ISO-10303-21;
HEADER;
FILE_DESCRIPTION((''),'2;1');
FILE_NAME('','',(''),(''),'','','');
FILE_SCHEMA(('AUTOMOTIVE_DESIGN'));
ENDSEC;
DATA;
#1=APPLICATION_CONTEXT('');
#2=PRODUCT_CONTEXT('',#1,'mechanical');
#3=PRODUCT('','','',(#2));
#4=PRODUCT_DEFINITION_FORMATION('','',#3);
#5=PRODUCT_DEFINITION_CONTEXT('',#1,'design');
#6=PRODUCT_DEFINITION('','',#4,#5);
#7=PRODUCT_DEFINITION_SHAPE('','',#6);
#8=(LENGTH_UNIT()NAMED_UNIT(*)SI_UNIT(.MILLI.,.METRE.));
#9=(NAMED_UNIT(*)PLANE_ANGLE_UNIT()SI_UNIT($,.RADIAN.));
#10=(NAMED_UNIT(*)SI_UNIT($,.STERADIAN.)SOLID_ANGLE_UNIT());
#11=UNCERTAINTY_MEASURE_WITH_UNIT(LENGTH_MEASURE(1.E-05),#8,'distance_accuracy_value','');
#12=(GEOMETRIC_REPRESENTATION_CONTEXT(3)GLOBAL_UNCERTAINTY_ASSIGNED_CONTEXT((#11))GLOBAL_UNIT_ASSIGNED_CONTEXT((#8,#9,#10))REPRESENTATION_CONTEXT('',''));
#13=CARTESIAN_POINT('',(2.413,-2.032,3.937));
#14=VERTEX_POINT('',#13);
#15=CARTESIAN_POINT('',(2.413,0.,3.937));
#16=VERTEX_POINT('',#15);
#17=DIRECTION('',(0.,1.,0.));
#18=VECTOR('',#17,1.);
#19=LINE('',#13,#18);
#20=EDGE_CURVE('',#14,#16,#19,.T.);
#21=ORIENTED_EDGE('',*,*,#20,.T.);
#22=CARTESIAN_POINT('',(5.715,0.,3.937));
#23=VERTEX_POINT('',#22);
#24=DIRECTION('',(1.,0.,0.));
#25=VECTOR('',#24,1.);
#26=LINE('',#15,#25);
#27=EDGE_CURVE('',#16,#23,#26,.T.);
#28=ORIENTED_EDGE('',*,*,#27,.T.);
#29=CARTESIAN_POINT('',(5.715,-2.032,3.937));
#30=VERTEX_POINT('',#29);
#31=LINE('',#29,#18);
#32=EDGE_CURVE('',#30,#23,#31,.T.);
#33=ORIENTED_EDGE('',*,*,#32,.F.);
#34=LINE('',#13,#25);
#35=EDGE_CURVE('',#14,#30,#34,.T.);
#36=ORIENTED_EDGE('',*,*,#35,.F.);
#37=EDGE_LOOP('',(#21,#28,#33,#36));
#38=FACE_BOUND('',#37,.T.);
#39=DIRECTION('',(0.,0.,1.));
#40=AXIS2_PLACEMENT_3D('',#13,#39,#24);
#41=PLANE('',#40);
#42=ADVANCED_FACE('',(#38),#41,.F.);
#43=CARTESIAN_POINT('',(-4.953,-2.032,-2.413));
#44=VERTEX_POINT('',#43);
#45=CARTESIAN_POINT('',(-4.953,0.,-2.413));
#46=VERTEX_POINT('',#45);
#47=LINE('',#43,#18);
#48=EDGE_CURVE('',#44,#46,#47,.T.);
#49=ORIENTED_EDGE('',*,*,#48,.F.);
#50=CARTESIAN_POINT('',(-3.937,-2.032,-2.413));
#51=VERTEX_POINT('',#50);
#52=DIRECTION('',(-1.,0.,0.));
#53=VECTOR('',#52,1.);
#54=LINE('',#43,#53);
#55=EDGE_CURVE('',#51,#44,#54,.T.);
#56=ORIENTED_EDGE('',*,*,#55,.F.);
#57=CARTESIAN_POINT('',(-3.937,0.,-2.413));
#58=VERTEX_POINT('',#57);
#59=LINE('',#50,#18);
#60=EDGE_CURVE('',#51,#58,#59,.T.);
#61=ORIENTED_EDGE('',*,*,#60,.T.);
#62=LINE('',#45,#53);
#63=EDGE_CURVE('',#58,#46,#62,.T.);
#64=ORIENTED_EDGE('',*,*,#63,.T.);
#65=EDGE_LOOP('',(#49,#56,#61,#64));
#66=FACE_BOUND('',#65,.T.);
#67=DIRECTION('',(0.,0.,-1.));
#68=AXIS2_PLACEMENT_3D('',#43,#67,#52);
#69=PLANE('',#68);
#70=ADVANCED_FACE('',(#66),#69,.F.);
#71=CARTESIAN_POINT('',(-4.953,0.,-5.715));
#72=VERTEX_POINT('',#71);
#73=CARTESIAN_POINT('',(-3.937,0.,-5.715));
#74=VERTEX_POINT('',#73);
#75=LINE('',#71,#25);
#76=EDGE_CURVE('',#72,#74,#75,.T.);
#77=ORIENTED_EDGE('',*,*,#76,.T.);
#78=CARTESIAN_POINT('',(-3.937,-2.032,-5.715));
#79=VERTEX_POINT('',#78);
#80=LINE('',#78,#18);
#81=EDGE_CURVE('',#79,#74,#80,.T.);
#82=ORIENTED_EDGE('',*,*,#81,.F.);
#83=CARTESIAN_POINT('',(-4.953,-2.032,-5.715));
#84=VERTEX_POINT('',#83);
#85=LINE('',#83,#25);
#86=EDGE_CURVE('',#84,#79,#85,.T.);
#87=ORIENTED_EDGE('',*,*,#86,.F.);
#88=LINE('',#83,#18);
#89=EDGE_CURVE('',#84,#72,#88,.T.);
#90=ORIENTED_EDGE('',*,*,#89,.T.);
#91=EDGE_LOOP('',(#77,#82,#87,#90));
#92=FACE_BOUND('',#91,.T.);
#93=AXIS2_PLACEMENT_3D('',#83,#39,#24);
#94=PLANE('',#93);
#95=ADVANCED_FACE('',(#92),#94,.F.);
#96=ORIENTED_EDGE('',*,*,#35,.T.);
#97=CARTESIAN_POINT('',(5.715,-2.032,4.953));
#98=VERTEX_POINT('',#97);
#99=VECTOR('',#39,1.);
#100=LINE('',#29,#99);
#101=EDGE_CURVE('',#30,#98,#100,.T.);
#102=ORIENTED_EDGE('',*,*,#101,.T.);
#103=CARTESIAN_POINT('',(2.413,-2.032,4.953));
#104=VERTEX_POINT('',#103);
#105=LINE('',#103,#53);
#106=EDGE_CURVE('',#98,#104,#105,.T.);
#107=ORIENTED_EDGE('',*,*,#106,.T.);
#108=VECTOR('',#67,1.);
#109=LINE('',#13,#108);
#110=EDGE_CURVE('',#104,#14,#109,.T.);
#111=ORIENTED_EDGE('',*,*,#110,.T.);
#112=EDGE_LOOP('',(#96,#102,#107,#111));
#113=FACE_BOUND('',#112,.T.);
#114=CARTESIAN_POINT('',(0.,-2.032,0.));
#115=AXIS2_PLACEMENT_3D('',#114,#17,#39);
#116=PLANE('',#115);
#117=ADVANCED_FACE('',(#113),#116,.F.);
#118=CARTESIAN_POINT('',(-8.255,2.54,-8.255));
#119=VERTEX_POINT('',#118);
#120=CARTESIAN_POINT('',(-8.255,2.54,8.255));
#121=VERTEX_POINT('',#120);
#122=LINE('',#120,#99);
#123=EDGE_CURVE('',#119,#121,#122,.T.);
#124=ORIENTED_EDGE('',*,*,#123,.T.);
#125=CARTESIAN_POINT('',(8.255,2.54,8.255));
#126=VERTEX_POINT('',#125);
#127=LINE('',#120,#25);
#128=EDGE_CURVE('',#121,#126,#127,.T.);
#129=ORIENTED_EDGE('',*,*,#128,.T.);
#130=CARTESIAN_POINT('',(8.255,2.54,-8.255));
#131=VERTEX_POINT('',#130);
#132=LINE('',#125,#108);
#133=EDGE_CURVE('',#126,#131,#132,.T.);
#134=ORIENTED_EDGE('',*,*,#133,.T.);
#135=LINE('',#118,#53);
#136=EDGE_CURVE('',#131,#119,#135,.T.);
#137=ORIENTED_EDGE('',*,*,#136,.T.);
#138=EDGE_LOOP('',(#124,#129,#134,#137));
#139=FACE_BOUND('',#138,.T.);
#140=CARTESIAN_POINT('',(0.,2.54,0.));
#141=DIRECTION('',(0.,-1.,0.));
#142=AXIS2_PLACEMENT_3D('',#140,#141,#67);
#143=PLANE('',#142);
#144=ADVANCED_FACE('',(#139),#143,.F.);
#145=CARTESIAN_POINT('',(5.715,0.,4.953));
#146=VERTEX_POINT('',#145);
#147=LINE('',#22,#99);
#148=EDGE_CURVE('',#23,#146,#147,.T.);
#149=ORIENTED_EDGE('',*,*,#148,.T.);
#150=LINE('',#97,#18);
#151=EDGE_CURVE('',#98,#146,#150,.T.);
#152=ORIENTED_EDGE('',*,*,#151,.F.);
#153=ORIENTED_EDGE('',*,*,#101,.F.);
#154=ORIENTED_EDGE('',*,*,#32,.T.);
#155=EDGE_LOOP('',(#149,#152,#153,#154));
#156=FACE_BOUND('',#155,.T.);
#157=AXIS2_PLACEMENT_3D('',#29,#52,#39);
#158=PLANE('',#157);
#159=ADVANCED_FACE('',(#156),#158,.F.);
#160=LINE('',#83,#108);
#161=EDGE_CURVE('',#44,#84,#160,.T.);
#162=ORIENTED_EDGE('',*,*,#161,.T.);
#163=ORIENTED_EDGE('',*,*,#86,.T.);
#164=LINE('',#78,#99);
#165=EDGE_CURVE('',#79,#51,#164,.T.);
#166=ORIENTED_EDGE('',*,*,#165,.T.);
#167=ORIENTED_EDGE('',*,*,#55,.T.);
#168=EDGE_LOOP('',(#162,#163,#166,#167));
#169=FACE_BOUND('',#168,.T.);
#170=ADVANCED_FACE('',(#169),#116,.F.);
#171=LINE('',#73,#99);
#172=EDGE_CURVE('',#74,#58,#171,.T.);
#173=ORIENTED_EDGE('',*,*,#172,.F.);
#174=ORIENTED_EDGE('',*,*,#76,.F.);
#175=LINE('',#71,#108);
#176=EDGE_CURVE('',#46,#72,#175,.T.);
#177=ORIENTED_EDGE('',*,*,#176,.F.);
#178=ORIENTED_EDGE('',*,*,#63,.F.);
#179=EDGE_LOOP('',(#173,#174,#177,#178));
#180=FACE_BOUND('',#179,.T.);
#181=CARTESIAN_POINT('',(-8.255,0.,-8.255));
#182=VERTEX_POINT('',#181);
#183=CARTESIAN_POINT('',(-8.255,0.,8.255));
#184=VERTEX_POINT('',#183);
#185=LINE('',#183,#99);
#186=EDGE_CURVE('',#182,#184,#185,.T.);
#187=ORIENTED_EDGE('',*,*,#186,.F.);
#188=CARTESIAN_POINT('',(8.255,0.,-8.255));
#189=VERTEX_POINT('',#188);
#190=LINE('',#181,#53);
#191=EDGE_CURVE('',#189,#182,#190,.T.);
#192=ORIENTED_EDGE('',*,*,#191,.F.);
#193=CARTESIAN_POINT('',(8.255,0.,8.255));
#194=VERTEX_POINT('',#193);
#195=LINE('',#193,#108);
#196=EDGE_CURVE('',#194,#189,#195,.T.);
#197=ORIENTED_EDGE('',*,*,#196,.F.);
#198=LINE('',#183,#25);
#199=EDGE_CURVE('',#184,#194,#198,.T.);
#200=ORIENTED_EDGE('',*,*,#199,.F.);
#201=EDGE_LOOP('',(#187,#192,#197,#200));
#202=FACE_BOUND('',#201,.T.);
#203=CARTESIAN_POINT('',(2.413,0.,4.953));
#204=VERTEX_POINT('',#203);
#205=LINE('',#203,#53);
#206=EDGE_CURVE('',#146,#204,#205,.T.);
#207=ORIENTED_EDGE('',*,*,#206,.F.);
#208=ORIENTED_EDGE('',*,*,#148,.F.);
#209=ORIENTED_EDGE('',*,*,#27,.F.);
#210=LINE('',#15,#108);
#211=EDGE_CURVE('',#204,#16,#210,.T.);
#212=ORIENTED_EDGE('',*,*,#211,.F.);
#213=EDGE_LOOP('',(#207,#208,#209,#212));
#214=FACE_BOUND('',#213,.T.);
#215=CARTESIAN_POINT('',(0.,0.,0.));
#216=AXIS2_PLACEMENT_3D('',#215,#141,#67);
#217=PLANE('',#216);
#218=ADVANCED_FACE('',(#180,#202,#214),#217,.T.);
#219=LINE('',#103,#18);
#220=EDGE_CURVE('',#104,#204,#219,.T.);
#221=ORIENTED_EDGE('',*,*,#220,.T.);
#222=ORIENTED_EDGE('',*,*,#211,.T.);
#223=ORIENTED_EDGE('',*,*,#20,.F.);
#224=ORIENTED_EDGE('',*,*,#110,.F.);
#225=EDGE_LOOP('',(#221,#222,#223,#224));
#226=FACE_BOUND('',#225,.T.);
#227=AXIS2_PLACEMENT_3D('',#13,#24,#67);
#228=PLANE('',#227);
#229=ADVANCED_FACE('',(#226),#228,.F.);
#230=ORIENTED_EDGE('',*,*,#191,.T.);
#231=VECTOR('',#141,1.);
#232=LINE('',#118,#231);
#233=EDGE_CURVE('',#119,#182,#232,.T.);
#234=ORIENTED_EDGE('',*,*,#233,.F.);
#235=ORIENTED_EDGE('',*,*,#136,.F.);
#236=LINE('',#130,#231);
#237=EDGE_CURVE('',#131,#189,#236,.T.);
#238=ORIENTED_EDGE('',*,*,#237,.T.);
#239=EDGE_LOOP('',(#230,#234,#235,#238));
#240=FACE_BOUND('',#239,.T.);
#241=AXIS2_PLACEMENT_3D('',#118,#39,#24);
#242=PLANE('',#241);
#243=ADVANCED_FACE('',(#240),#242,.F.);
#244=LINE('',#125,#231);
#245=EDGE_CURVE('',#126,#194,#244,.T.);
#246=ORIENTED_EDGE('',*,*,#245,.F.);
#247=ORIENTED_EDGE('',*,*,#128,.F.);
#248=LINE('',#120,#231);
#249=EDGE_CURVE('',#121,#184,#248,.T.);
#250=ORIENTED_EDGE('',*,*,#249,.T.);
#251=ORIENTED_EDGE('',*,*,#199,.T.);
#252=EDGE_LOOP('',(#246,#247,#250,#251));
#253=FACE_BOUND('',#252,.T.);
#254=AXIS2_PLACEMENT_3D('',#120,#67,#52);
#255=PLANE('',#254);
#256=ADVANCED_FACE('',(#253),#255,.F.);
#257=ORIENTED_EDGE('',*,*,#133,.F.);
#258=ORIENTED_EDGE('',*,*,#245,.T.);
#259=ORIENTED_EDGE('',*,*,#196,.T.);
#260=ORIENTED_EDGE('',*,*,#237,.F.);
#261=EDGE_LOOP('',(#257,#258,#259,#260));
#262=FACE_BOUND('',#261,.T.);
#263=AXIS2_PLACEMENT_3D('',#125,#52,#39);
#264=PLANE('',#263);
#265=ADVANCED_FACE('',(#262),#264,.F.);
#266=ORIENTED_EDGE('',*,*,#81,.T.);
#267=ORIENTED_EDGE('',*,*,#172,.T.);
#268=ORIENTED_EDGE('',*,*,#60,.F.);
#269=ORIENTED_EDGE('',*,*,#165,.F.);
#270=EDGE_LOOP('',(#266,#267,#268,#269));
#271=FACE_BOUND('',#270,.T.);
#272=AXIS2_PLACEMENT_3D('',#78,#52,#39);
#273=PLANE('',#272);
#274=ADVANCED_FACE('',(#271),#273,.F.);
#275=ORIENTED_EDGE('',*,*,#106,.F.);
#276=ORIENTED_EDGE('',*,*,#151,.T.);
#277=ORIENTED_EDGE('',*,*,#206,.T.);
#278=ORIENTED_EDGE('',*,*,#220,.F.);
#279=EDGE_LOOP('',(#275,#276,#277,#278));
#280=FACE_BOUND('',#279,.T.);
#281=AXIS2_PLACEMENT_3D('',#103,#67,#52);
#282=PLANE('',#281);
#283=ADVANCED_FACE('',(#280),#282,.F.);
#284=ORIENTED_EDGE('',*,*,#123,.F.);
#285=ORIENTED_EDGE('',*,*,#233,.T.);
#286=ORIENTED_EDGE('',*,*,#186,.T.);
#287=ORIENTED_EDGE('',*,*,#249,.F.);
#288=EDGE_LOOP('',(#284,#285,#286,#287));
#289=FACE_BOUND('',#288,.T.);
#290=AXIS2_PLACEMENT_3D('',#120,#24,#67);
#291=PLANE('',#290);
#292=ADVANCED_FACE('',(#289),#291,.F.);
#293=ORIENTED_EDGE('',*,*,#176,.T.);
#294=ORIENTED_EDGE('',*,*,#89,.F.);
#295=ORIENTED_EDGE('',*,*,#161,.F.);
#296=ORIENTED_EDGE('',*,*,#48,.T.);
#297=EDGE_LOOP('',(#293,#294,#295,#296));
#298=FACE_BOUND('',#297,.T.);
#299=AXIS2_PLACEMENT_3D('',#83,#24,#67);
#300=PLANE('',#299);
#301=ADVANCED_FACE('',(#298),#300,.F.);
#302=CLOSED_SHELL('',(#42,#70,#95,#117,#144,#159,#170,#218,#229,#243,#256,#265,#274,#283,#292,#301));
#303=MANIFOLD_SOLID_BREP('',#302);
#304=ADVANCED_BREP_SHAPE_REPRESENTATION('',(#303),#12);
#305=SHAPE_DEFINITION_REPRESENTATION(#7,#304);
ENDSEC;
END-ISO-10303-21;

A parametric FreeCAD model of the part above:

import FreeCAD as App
import Part
import Sketcher
from FreeCAD import Vector
Q = App.Units.Quantity


def add_polygon(sketch, points):
    """Adds a closed chain of lines whose ends are joined by coincident constraints."""
    first, n = sketch.GeometryCount, len(points)
    for a, b in zip(points, points[1:] + points[:1]):
        sketch.addGeometry(Part.LineSegment(App.Vector(*a, 0), App.Vector(*b, 0)), False)
    for i in range(n):
        sketch.addConstraint(Sketcher.Constraint("Coincident", first + i, 2, first + (i + 1) % n, 1))

doc = App.newDocument("Part")
body = doc.addObject("PartDesign::Body", "Body")

sketch1 = doc.addObject("Sketcher::SketchObject", "Sketch")
body.addObject(sketch1)
sketch1.AttachmentSupport = (doc.XZ_Plane, [""])
sketch1.MapMode = "FlatFace"
add_polygon(sketch1, [(-8, -8), (-8, 8), (8, 8), (8, -8)])
sketch1.addConstraint([
    Sketcher.Constraint("Vertical", 0),
    Sketcher.Constraint("Horizontal", 1),
    Sketcher.Constraint("Vertical", 2),
    Sketcher.Constraint("Horizontal", 3),
    Sketcher.Constraint("Symmetric", 0, 2, 2, 2, -1, 1),
    Sketcher.Constraint("Equal", 3, 0),
    Sketcher.Constraint("DistanceX", 1, 1, 1, 2, Q("0.65 in")),
])
pad1 = doc.addObject("PartDesign::Pad", "Pad")
body.addObject(pad1)
pad1.Profile = sketch1
pad1.Length = Q("0.1 in")
pad1.Reversed = True

sketch2 = doc.addObject("Sketcher::SketchObject", "Sketch001")
body.addObject(sketch2)
sketch2.AttachmentSupport = (doc.XZ_Plane, [""])
sketch2.MapMode = "FlatFace"
add_polygon(sketch2, [(-5, -2.4), (-5, -5.7), (-3.9, -5.7), (-3.9, -2.4)])
add_polygon(sketch2, [(2.4, 5), (2.4, 3.9), (5.7, 3.9), (5.7, 5)])
sketch2.addConstraint([
    Sketcher.Constraint("Vertical", 0),
    Sketcher.Constraint("Horizontal", 1),
    Sketcher.Constraint("Vertical", 2),
    Sketcher.Constraint("Horizontal", 3),
    Sketcher.Constraint("Vertical", 4),
    Sketcher.Constraint("Horizontal", 5),
    Sketcher.Constraint("Vertical", 6),
    Sketcher.Constraint("Horizontal", 7),
    Sketcher.Constraint("Equal", 7, 0),
    Sketcher.Constraint("Equal", 3, 4),
    Sketcher.Constraint("DistanceX", 1, 1, 1, 2, Q("0.04 in")),
    Sketcher.Constraint("DistanceX", 5, 1, 5, 2, Q("0.13 in")),
    Sketcher.Constraint("DistanceX", 2, 2, 4, 2, Q("0.25 in")),
    Sketcher.Constraint("DistanceY", 2, 2, 4, 2, Q("0.25 in")),
    Sketcher.Constraint("DistanceX", 0, 2, -1, 1, Q("0.195 in")),
    Sketcher.Constraint("DistanceY", 0, 2, -1, 1, Q("0.225 in")),
])
pad2 = doc.addObject("PartDesign::Pad", "Pad001")
body.addObject(pad2)
pad2.Profile = sketch2
pad2.Length = Q("0.08 in")

doc.recompute()
